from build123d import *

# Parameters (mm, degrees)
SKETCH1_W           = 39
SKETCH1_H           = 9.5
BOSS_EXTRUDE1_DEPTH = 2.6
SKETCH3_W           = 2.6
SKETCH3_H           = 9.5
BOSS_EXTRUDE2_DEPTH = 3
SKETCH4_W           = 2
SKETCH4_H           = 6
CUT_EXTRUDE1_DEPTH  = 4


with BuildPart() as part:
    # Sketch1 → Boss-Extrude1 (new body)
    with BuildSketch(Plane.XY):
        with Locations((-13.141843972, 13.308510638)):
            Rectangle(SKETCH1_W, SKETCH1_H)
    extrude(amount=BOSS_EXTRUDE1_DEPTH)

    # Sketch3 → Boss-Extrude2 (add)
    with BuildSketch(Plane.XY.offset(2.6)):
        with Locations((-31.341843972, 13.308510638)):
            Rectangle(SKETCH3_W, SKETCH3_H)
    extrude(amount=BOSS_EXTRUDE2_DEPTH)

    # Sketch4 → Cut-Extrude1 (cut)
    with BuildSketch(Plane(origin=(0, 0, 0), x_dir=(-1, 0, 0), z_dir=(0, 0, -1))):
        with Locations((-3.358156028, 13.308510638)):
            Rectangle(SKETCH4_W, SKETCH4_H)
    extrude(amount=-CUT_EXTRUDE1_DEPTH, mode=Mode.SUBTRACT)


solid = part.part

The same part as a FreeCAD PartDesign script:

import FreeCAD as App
import Part
import Sketcher
Q = App.Units.Quantity


def add_polygon(sketch, points):
    """Adds a closed chain of lines whose ends are joined by coincident constraints."""
    first, n = sketch.GeometryCount, len(points)
    for a, b in zip(points, points[1:] + points[:1]):
        sketch.addGeometry(Part.LineSegment(App.Vector(*a, 0), App.Vector(*b, 0)), False)
    for i in range(n):
        sketch.addConstraint(Sketcher.Constraint("Coincident", first + i, 2, first + (i + 1) % n, 1))

doc = App.newDocument("Part")
body = doc.addObject("PartDesign::Body", "Body")

# Sketch on XY plane
sketch1 = body.newObject("Sketcher::SketchObject", "Sketch")
sketch1.AttachmentSupport = (doc.getObject("XY_Plane"), [""])
sketch1.MapMode = "FlatFace"
add_polygon(sketch1, [(-32.641844, 18.058511), (-32.641844, 8.558511), (6.358156, 8.558511), (6.358156, 18.058511)])  # lines 0-3
sketch1.addConstraint(Sketcher.Constraint("Vertical", 0))
sketch1.addConstraint(Sketcher.Constraint("Horizontal", 1))
sketch1.addConstraint(Sketcher.Constraint("Vertical", 2))
sketch1.addConstraint(Sketcher.Constraint("Horizontal", 3))
sketch1.addConstraint(Sketcher.Constraint("DistanceX", 1, 1, 1, 2, Q("39 mm")))
sketch1.addConstraint(Sketcher.Constraint("DistanceY", 0, 2, 0, 1, Q("9.5 mm")))
sketch1.addConstraint(Sketcher.Constraint("DistanceY", -1, 1, 0, 2, Q("8.558511 mm")))
sketch1.addConstraint(Sketcher.Constraint("DistanceX", 0, 2, -1, 1, Q("32.641844 mm")))
pad1 = body.newObject("PartDesign::Pad", "Pad")
pad1.Profile = sketch1
pad1.Length = 2.6

# Sketch on XY plane
sketch2 = body.newObject("Sketcher::SketchObject", "Sketch001")
sketch2.AttachmentSupport = (doc.getObject("XY_Plane"), [""])
sketch2.MapMode = "FlatFace"
sketch2.AttachmentOffset = App.Placement(App.Vector(0, 0, 2.6), App.Rotation())
add_polygon(sketch2, [(-32.641844, 18.058511), (-32.641844, 8.558511), (-30.041844, 8.558511), (-30.041844, 18.058511)])  # lines 0-3
sketch2.addConstraint(Sketcher.Constraint("Vertical", 0))
sketch2.addConstraint(Sketcher.Constraint("Horizontal", 1))
sketch2.addConstraint(Sketcher.Constraint("Vertical", 2))
sketch2.addConstraint(Sketcher.Constraint("Horizontal", 3))
sketch2.addConstraint(Sketcher.Constraint("DistanceX", 1, 1, 1, 2, Q("2.6 mm")))
sketch2.addConstraint(Sketcher.Constraint("DistanceY", 0, 2, 0, 1, Q("9.5 mm")))
sketch2.addConstraint(Sketcher.Constraint("DistanceY", -1, 1, 0, 2, Q("8.558511 mm")))
sketch2.addConstraint(Sketcher.Constraint("DistanceX", 0, 2, -1, 1, Q("32.641844 mm")))
pad2 = body.newObject("PartDesign::Pad", "Pad001")
pad2.Profile = sketch2
pad2.Length = 3

# Sketch on XY plane
sketch3 = body.newObject("Sketcher::SketchObject", "Sketch002")
sketch3.AttachmentSupport = (doc.getObject("XY_Plane"), [""])
sketch3.MapMode = "FlatFace"
add_polygon(sketch3, [(4.358156, 16.308511), (4.358156, 10.308511), (2.358156, 10.308511), (2.358156, 16.308511)])  # lines 0-3
sketch3.addConstraint(Sketcher.Constraint("Vertical", 0))
sketch3.addConstraint(Sketcher.Constraint("Horizontal", 1))
sketch3.addConstraint(Sketcher.Constraint("Vertical", 2))
sketch3.addConstraint(Sketcher.Constraint("Horizontal", 3))
sketch3.addConstraint(Sketcher.Constraint("DistanceX", 1, 2, 1, 1, Q("2 mm")))
sketch3.addConstraint(Sketcher.Constraint("DistanceY", 0, 2, 0, 1, Q("6 mm")))
sketch3.addConstraint(Sketcher.Constraint("DistanceY", -1, 1, 0, 2, Q("10.308511 mm")))
sketch3.addConstraint(Sketcher.Constraint("DistanceX", -1, 1, 0, 2, Q("4.358156 mm")))
pocket1 = body.newObject("PartDesign::Pocket", "Pocket")
pocket1.Profile = sketch3
pocket1.Length = 4
pocket1.Reversed = True

doc.recompute()
